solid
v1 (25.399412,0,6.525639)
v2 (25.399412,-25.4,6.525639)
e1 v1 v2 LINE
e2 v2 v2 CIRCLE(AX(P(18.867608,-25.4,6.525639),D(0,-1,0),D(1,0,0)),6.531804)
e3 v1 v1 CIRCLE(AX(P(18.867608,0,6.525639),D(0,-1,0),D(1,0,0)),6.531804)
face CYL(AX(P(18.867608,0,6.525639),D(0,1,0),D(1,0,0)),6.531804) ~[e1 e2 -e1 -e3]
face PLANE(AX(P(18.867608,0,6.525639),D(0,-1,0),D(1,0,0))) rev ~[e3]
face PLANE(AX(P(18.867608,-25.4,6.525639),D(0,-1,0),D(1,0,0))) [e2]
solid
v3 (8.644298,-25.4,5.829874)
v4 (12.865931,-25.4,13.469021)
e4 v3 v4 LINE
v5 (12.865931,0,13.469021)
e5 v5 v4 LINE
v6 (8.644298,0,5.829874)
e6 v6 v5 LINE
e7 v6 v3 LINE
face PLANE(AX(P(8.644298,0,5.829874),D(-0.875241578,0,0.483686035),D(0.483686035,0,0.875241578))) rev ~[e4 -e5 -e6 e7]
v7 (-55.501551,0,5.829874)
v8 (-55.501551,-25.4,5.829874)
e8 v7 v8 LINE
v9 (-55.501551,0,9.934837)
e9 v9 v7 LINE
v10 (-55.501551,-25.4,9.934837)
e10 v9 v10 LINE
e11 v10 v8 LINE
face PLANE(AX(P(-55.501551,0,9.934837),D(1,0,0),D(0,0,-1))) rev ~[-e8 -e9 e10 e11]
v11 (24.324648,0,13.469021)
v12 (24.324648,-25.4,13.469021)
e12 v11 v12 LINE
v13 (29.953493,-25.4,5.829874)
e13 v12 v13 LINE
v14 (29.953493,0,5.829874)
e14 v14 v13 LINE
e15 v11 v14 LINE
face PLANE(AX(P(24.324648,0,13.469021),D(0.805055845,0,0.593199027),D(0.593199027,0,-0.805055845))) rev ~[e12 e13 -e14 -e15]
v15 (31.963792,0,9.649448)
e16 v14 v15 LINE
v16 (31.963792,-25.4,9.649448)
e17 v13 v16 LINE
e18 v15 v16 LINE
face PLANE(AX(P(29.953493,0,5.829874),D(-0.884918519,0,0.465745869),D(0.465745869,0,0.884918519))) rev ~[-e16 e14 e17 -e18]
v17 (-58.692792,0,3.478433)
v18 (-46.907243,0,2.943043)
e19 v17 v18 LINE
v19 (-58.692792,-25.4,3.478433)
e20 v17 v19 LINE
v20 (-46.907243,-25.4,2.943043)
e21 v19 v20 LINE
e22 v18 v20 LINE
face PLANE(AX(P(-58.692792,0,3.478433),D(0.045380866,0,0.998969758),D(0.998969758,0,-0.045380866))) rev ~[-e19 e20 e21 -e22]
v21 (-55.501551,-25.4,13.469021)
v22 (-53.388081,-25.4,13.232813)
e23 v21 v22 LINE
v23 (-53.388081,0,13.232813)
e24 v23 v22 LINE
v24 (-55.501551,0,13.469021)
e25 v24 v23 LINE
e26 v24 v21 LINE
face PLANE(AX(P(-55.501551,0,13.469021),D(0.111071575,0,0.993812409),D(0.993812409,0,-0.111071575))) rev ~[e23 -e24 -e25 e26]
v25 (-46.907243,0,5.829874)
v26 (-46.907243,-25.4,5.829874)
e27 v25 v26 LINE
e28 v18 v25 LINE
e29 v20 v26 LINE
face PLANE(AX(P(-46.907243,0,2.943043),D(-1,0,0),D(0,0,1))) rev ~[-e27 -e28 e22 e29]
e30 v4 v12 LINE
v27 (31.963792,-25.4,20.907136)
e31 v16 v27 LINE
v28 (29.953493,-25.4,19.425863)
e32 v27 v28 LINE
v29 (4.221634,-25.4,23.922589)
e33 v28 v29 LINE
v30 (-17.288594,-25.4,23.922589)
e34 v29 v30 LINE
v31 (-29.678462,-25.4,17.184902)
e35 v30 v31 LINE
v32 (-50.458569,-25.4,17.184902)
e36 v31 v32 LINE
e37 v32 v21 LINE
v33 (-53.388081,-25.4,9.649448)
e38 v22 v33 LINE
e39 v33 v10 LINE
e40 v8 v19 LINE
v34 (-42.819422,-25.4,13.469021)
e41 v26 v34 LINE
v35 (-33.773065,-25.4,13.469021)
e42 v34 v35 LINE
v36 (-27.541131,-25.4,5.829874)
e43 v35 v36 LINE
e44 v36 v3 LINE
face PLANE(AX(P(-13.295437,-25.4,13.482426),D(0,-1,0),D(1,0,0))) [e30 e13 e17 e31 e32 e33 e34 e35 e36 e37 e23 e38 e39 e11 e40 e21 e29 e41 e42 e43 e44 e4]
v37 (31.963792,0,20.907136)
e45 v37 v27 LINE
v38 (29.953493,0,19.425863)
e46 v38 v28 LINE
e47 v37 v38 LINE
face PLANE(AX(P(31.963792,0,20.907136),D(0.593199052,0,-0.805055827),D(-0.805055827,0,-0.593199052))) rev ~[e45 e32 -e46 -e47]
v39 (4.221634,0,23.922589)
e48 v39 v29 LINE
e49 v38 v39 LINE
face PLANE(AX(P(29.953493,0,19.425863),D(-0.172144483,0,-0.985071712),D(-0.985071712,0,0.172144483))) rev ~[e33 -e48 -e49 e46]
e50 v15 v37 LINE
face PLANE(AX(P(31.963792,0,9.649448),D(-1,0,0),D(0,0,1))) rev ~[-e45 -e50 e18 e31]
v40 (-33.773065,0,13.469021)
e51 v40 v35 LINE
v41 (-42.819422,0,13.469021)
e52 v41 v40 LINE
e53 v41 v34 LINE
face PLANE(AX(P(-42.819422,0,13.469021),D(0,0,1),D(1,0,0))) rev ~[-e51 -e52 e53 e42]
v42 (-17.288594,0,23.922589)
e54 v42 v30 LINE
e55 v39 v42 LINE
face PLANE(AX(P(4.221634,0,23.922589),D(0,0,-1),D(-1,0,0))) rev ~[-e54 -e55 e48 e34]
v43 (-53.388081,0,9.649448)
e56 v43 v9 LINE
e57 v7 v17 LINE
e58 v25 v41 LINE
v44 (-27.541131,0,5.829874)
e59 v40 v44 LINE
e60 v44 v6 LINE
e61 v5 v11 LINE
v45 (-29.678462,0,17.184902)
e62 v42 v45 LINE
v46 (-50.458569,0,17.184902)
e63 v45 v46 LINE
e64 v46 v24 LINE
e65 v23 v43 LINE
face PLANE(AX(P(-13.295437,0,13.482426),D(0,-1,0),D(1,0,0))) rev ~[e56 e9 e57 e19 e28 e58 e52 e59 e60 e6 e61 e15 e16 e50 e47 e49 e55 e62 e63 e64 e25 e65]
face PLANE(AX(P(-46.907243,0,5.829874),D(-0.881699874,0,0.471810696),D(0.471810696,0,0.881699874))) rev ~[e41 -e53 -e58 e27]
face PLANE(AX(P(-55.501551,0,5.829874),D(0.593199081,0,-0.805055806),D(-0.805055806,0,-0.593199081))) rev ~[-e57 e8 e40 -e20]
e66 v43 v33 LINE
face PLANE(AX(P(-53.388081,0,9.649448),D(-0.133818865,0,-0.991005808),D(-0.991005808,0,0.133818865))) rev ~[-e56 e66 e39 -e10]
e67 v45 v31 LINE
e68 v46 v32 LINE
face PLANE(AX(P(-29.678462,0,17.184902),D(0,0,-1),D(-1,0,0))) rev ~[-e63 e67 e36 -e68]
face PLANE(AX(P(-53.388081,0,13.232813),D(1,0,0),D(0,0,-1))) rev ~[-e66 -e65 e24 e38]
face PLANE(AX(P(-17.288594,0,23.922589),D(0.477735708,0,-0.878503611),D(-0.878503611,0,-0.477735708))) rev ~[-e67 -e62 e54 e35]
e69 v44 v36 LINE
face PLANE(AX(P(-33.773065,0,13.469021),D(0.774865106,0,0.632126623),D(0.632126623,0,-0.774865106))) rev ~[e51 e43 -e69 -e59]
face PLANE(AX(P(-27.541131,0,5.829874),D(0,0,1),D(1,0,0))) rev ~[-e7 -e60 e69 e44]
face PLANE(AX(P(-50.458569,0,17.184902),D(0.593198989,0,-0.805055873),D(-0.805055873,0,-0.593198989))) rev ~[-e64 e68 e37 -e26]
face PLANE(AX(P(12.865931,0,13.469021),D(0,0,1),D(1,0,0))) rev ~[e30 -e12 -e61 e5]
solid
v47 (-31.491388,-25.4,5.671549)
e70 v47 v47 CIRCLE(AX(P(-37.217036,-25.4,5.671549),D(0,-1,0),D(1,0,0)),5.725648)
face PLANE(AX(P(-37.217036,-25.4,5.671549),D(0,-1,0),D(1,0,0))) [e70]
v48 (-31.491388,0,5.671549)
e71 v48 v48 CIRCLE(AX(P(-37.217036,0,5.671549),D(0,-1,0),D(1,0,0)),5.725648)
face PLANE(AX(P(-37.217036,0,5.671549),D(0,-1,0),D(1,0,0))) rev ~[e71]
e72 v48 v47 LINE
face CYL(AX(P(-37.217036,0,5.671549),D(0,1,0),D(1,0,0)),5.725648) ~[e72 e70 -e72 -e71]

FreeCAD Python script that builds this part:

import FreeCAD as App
import Part
import Sketcher
Q = App.Units.Quantity

doc = App.newDocument("Part")
body = doc.addObject("PartDesign::Body", "Body")

# Sketch on XZ plane
sketch1 = body.newObject("Sketcher::SketchObject", "Sketch")
sketch1.AttachmentSupport = (doc.getObject("XZ_Plane"), [""])
sketch1.MapMode = "FlatFace"
sketch1.addGeometry([
    Part.LineSegment(App.Vector(-46.9, 5.8, 0), App.Vector(-42.8, 13.5, 0)),  # 0
    Part.LineSegment(App.Vector(-42.8, 13.5, 0), App.Vector(-33.8, 13.5, 0)),  # 1
    Part.LineSegment(App.Vector(-33.8, 13.5, 0), App.Vector(-27.5, 5.8, 0)),  # 2
    Part.LineSegment(App.Vector(-27.5, 5.8, 0), App.Vector(8.6, 5.8, 0)),  # 3
    Part.LineSegment(App.Vector(8.6, 5.8, 0), App.Vector(12.9, 13.5, 0)),  # 4
    Part.LineSegment(App.Vector(12.9, 13.5, 0), App.Vector(24.3, 13.5, 0)),  # 5
    Part.LineSegment(App.Vector(24.3, 13.5, 0), App.Vector(30, 5.8, 0)),  # 6
    Part.LineSegment(App.Vector(30, 5.8, 0), App.Vector(32, 9.6, 0)),  # 7
    Part.LineSegment(App.Vector(32, 9.6, 0), App.Vector(32, 20.9, 0)),  # 8
    Part.LineSegment(App.Vector(32, 20.9, 0), App.Vector(30, 19.4, 0)),  # 9
    Part.LineSegment(App.Vector(30, 19.4, 0), App.Vector(4.2, 23.9, 0)),  # 10
    Part.LineSegment(App.Vector(4.2, 23.9, 0), App.Vector(-17.3, 23.9, 0)),  # 11
    Part.LineSegment(App.Vector(-17.3, 23.9, 0), App.Vector(-29.7, 17.2, 0)),  # 12
    Part.LineSegment(App.Vector(-29.7, 17.2, 0), App.Vector(-50.5, 17.2, 0)),  # 13
    Part.LineSegment(App.Vector(-50.5, 17.2, 0), App.Vector(-55.5, 13.5, 0)),  # 14
    Part.LineSegment(App.Vector(-55.5, 13.5, 0), App.Vector(-53.4, 13.2, 0)),  # 15
    Part.LineSegment(App.Vector(-53.4, 13.2, 0), App.Vector(-53.4, 9.6, 0)),  # 16
    Part.LineSegment(App.Vector(-53.4, 9.6, 0), App.Vector(-55.5, 9.9, 0)),  # 17
    Part.LineSegment(App.Vector(-55.5, 9.9, 0), App.Vector(-55.5, 5.8, 0)),  # 18
    Part.LineSegment(App.Vector(-55.5, 5.8, 0), App.Vector(-58.7, 3.5, 0)),  # 19
    Part.LineSegment(App.Vector(-58.7, 3.5, 0), App.Vector(-46.9, 2.9, 0)),  # 20
    Part.LineSegment(App.Vector(-46.9, 2.9, 0), App.Vector(-46.9, 5.8, 0)),  # 21
], False)
sketch1.addConstraint([
    Sketcher.Constraint("Coincident", 0, 2, 1, 1),
    Sketcher.Constraint("Coincident", 1, 2, 2, 1),
    Sketcher.Constraint("Coincident", 2, 2, 3, 1),
    Sketcher.Constraint("Coincident", 3, 2, 4, 1),
    Sketcher.Constraint("Coincident", 4, 2, 5, 1),
    Sketcher.Constraint("Coincident", 5, 2, 6, 1),
    Sketcher.Constraint("Coincident", 6, 2, 7, 1),
    Sketcher.Constraint("Coincident", 7, 2, 8, 1),
    Sketcher.Constraint("Coincident", 8, 2, 9, 1),
    Sketcher.Constraint("Coincident", 9, 2, 10, 1),
    Sketcher.Constraint("Coincident", 10, 2, 11, 1),
    Sketcher.Constraint("Coincident", 11, 2, 12, 1),
    Sketcher.Constraint("Coincident", 12, 2, 13, 1),
    Sketcher.Constraint("Coincident", 13, 2, 14, 1),
    Sketcher.Constraint("Coincident", 14, 2, 15, 1),
    Sketcher.Constraint("Coincident", 15, 2, 16, 1),
    Sketcher.Constraint("Coincident", 16, 2, 17, 1),
    Sketcher.Constraint("Coincident", 17, 2, 18, 1),
    Sketcher.Constraint("Coincident", 18, 2, 19, 1),
    Sketcher.Constraint("Coincident", 19, 2, 20, 1),
    Sketcher.Constraint("Coincident", 20, 2, 21, 1),
    Sketcher.Constraint("Coincident", 21, 2, 0, 1),
    Sketcher.Constraint("Horizontal", 1),
    Sketcher.Constraint("Horizontal", 3),
    Sketcher.Constraint("Horizontal", 5),
    Sketcher.Constraint("Vertical", 8),
    Sketcher.Constraint("Horizontal", 11),
    Sketcher.Constraint("Horizontal", 13),
    Sketcher.Constraint("Vertical", 16),
    Sketcher.Constraint("Vertical", 18),
    Sketcher.Constraint("Vertical", 21),
    Sketcher.Constraint("Perpendicular", 6, 9),
    Sketcher.Constraint("Parallel", 9, 14),
    Sketcher.Constraint("Parallel", 14, 19),
    Sketcher.Constraint("Horizontal", 1, 2, 4, 2),
    Sketcher.Constraint("Horizontal", 3, 2, 6, 2),
    Sketcher.Constraint("Horizontal", 5, 2, 14, 2),
    Sketcher.Constraint("Horizontal", 7, 2, 16, 2),
    Sketcher.Constraint("Horizontal", 6, 2, 18, 2),
    Sketcher.Constraint("Horizontal", 18, 2, 21, 2),
    Sketcher.Constraint("Vertical", 6, 2, 9, 2),
    Sketcher.Constraint("Vertical", 14, 2, 17, 2),
    Sketcher.Constraint("Distance", 7, Q("4.3163 mm")),
    Sketcher.Constraint("Distance", 19, Q("3.964 mm")),
    Sketcher.Constraint("DistanceX", 3, 1, 3, 2, Q("36.185429 mm")),
    Sketcher.Constraint("DistanceY", 8, 1, 8, 2, Q("11.257688 mm")),
    Sketcher.Constraint("DistanceY", 21, 1, 21, 2, Q("2.886831 mm")),
    Sketcher.Constraint("DistanceX", 6, 2, 7, 2, Q("2.010299 mm")),
    Sketcher.Constraint("Distance", 2, Q("9.85868 mm")),
    Sketcher.Constraint("Distance", 14, Q("6.264139 mm")),
    Sketcher.Constraint("Distance", 15, Q("2.126629 mm")),
    Sketcher.Constraint("Distance", 17, Q("2.132651 mm")),
    Sketcher.Constraint("DistanceX", 1, 1, 1, 2, Q("9.046357 mm")),
    Sketcher.Constraint("DistanceX", 5, 1, 5, 2, Q("11.458717 mm")),
    Sketcher.Constraint("DistanceX", 11, 2, 11, 1, Q("21.510228 mm")),
    Sketcher.Constraint("DistanceX", 13, 2, 13, 1, Q("20.780107 mm")),
    Sketcher.Constraint("DistanceY", 16, 2, 16, 1, Q("3.583365 mm")),
    Sketcher.Constraint("DistanceY", 18, 2, 18, 1, Q("4.104963 mm")),
    Sketcher.Constraint("DistanceY", -1, 1, 0, 2, Q("13.469021 mm")),
    Sketcher.Constraint("DistanceX", 2, 2, -1, 1, Q("27.541131 mm")),
    Sketcher.Constraint("DistanceX", -1, 1, 4, 2, Q("12.865931 mm")),
    Sketcher.Constraint("DistanceY", -1, 1, 10, 2, Q("23.922589 mm")),
    Sketcher.Constraint("DistanceX", 12, 2, -1, 1, Q("29.678462 mm")),
    Sketcher.Constraint("DistanceX", 14, 2, -1, 1, Q("55.501551 mm")),
    Sketcher.Constraint("DistanceX", 10, 2, 9, 2, Q("25.731859 mm")),
    Sketcher.Constraint("DistanceX", 20, 2, 0, 2, Q("4.087821 mm")),
])
pad1 = body.newObject("PartDesign::Pad", "Pad")
pad1.Profile = sketch1
pad1.Length = Q("1 in")
body2 = doc.addObject("PartDesign::Body", "Body001")

# Sketch on XZ plane
sketch2 = body2.newObject("Sketcher::SketchObject", "Sketch001")
sketch2.AttachmentSupport = (doc.getObject("XZ_Plane001"), [""])
sketch2.MapMode = "FlatFace"
sketch2.addGeometry(Part.Circle(App.Vector(-37, 6, 0), App.Vector(0, 0, 1), 6), False)
sketch2.addConstraint([
    Sketcher.Constraint("Diameter", 0, Q("11.451296 mm")),
    Sketcher.Constraint("DistanceY", -1, 1, 0, 3, Q("5.671549 mm")),
    Sketcher.Constraint("DistanceX", 0, 3, -1, 1, Q("37.217036 mm")),
])
pad2 = body2.newObject("PartDesign::Pad", "Pad001")
pad2.Profile = sketch2
pad2.Length = Q("1 in")
body3 = doc.addObject("PartDesign::Body", "Body002")

# Sketch on XZ plane
sketch3 = body3.newObject("Sketcher::SketchObject", "Sketch002")
sketch3.AttachmentSupport = (doc.getObject("XZ_Plane002"), [""])
sketch3.MapMode = "FlatFace"
sketch3.addGeometry(Part.Circle(App.Vector(19, 7, 0), App.Vector(0, 0, 1), 7), False)
sketch3.addConstraint([
    Sketcher.Constraint("Diameter", 0, Q("13.063608 mm")),
    Sketcher.Constraint("DistanceX", -1, 1, 0, 3, Q("18.867608 mm")),
    Sketcher.Constraint("DistanceY", -1, 1, 0, 3, Q("6.525639 mm")),
])
pad3 = body3.newObject("PartDesign::Pad", "Pad002")
pad3.Profile = sketch3
pad3.Length = Q("1 in")

doc.recompute()
